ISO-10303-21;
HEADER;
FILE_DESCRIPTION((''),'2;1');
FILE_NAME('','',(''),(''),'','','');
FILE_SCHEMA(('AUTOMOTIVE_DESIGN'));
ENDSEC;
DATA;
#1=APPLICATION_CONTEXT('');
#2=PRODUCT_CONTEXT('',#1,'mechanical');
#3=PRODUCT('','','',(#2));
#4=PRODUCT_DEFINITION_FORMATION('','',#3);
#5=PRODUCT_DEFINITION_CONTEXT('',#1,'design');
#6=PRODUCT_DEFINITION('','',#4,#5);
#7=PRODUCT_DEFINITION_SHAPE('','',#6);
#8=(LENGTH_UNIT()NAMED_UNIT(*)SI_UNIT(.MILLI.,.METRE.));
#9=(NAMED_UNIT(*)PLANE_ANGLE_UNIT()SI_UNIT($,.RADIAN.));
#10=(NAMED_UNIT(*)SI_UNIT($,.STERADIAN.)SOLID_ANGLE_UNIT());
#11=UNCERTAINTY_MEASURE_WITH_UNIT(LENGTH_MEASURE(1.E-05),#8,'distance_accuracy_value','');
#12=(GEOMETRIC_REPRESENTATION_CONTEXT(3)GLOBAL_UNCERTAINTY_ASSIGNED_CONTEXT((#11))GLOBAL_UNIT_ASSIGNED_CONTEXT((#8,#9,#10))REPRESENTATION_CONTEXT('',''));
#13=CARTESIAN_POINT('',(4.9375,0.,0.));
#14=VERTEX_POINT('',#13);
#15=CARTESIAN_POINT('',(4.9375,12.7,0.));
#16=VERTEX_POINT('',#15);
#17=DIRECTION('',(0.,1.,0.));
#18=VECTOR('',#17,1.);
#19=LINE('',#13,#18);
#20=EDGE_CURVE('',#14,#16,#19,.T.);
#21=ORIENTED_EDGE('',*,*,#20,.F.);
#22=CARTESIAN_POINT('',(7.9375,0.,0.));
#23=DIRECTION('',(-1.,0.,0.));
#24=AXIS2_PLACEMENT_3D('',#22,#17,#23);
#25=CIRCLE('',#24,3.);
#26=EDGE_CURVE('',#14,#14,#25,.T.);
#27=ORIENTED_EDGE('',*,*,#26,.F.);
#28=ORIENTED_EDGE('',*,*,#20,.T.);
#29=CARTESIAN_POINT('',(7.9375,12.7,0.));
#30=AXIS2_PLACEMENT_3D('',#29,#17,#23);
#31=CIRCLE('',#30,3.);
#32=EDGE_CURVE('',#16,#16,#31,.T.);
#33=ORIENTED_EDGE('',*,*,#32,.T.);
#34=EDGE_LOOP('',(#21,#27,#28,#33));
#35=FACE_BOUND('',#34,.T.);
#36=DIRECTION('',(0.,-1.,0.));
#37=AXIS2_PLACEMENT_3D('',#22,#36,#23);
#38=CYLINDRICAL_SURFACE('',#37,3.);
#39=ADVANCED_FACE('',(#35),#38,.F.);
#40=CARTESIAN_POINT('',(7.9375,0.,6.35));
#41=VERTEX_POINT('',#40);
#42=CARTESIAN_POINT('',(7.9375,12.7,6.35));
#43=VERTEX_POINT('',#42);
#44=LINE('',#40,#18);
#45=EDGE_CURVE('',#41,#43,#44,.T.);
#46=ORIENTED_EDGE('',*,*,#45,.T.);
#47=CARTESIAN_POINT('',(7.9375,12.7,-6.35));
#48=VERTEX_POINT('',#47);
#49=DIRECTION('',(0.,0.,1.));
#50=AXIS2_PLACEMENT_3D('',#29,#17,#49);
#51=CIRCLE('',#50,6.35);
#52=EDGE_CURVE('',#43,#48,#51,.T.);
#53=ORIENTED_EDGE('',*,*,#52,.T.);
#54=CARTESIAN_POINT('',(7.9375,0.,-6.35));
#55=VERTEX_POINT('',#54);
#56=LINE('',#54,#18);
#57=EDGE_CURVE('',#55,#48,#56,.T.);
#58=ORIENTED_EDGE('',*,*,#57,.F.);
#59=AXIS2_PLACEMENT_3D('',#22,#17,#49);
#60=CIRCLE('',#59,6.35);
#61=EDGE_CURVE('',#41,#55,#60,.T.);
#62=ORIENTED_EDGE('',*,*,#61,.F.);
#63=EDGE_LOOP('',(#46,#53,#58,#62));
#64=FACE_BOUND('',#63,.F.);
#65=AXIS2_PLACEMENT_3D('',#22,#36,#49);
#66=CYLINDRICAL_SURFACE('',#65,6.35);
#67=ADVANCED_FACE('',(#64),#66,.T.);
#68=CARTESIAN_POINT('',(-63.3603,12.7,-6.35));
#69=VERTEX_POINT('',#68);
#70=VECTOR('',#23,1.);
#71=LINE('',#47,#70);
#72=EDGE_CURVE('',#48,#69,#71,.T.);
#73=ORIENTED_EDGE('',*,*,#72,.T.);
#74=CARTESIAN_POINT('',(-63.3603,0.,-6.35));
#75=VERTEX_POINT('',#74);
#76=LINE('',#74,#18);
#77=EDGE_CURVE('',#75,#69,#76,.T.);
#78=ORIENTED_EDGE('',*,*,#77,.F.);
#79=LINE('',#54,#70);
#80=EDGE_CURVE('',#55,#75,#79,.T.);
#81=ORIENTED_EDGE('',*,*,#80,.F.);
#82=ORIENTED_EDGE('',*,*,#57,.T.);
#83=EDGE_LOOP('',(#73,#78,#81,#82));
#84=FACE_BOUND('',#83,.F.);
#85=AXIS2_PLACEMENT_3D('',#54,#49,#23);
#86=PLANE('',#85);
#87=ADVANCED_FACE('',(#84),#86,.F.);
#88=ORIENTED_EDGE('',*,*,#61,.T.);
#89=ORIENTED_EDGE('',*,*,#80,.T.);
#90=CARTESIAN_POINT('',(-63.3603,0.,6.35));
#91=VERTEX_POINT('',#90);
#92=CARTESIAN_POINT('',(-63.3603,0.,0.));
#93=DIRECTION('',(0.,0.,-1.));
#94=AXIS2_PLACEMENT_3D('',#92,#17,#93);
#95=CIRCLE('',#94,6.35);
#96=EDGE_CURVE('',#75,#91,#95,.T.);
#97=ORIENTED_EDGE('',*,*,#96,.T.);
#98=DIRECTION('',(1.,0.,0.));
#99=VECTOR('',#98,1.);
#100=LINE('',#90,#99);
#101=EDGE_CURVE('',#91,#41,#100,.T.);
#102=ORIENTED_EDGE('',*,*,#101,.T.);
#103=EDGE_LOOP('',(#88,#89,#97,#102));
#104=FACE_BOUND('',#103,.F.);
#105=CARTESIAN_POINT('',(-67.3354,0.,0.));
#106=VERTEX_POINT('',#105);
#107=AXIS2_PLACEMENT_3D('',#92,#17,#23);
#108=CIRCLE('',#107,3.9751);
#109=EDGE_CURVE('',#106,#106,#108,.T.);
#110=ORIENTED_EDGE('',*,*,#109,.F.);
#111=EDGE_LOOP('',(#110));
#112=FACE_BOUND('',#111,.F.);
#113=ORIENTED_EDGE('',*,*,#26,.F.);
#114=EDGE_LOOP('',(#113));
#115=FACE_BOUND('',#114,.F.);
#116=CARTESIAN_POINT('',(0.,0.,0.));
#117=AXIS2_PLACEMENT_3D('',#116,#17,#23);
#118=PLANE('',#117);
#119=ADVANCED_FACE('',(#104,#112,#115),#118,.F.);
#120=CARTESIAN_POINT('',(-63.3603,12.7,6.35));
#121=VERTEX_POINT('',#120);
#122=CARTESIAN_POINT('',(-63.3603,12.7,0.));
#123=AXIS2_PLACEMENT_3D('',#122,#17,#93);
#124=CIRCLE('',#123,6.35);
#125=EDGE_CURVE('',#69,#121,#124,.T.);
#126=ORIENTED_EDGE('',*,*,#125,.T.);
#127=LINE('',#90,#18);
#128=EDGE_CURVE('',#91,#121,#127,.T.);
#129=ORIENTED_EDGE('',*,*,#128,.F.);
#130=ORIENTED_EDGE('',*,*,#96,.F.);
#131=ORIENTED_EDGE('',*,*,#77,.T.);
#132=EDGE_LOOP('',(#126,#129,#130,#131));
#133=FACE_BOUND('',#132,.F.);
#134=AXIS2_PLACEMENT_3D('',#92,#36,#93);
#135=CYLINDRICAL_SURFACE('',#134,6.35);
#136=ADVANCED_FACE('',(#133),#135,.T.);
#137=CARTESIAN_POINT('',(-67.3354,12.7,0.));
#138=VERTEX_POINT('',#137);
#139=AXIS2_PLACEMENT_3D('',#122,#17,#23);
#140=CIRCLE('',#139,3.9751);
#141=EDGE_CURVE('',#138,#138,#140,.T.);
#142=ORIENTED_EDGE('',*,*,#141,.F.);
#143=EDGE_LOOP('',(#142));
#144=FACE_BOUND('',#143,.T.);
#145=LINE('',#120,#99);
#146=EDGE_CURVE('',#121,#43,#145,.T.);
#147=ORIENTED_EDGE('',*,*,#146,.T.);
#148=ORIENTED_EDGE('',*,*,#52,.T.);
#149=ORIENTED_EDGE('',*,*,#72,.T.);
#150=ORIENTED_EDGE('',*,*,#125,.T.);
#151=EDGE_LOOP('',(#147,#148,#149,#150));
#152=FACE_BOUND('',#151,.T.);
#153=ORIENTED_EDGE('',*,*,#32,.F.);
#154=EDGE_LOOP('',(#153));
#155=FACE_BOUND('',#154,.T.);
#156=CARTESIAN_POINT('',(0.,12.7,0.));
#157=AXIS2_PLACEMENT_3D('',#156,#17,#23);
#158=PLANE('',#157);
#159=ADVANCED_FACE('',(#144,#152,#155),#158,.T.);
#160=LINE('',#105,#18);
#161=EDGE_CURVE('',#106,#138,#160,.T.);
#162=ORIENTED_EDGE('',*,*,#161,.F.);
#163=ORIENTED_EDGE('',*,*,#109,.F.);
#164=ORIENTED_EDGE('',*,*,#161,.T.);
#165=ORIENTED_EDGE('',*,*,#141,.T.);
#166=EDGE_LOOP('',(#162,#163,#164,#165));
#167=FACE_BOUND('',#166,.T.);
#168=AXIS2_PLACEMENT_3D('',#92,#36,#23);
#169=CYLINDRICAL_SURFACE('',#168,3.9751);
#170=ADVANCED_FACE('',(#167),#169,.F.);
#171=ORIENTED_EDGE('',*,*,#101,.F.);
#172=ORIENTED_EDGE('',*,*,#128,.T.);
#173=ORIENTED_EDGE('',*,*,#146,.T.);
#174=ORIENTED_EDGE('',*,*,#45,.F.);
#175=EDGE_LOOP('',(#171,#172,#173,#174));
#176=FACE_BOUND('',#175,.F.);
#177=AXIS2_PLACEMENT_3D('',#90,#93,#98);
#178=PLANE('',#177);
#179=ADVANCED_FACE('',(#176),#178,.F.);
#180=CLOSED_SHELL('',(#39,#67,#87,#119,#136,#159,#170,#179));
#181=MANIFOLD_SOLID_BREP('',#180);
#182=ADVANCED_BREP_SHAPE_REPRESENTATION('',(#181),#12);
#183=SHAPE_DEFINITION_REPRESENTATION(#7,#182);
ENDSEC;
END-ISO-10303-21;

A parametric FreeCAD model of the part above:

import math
import FreeCAD as App
import Part
import Sketcher
from FreeCAD import Vector
Q = App.Units.Quantity

doc = App.newDocument("Part")
body = doc.addObject("PartDesign::Body", "Body")

# Sketch on XZ plane
sketch1 = body.newObject("Sketcher::SketchObject", "Sketch")
sketch1.AttachmentSupport = (doc.getObject("XZ_Plane"), [""])
sketch1.MapMode = "FlatFace"
sketch1.addGeometry([
    Part.ArcOfCircle(Part.Circle(Vector(-63.4, 0, 0), Vector(0, 0, 1), 6.3), math.radians(90), math.radians(270)),  # 0
    Part.LineSegment(Vector(-63.4, 6.3, 0), Vector(7.9, 6.3, 0)),  # 1
    Part.ArcOfCircle(Part.Circle(Vector(7.9, 0, 0), Vector(0, 0, 1), 6.3), math.radians(-90), math.radians(90)),  # 2
    Part.LineSegment(Vector(7.9, -6.3, 0), Vector(-63.4, -6.3, 0)),  # 3
    Part.Circle(Vector(7.9, 0, 0), Vector(0, 0, 1), 3),  # 4
    Part.Circle(Vector(-63.4, 0, 0), Vector(0, 0, 1), 4),  # 5
], False)
sketch1.addConstraint([
    Sketcher.Constraint("Tangent", 0, 1, 1, 1),
    Sketcher.Constraint("Tangent", 1, 2, 2, 2),
    Sketcher.Constraint("Tangent", 2, 1, 3, 1),
    Sketcher.Constraint("Tangent", 3, 2, 0, 2),
    Sketcher.Constraint("Horizontal", 1),
    Sketcher.Constraint("Horizontal", 3),
    Sketcher.Constraint("Coincident", 4, 3, 2, 3),
    Sketcher.Constraint("Coincident", 5, 3, 0, 3),
    Sketcher.Constraint("PointOnObject", 0, 3, -1),
    Sketcher.Constraint("Radius", 0, Q("0.25 in")),
    Sketcher.Constraint("Diameter", 5, Q("0.313 in")),
    Sketcher.Constraint("Diameter", 4, Q("6 mm")),
    Sketcher.Constraint("DistanceX", 1, 1, 1, 2, Q("2.807 in")),
    Sketcher.Constraint("DistanceX", -1, 1, 2, 3, Q("0.3125 in")),
])
pad1 = body.newObject("PartDesign::Pad", "Pad")
pad1.Profile = sketch1
pad1.Length = Q("0.5 in")
pad1.Reversed = True

doc.recompute()
